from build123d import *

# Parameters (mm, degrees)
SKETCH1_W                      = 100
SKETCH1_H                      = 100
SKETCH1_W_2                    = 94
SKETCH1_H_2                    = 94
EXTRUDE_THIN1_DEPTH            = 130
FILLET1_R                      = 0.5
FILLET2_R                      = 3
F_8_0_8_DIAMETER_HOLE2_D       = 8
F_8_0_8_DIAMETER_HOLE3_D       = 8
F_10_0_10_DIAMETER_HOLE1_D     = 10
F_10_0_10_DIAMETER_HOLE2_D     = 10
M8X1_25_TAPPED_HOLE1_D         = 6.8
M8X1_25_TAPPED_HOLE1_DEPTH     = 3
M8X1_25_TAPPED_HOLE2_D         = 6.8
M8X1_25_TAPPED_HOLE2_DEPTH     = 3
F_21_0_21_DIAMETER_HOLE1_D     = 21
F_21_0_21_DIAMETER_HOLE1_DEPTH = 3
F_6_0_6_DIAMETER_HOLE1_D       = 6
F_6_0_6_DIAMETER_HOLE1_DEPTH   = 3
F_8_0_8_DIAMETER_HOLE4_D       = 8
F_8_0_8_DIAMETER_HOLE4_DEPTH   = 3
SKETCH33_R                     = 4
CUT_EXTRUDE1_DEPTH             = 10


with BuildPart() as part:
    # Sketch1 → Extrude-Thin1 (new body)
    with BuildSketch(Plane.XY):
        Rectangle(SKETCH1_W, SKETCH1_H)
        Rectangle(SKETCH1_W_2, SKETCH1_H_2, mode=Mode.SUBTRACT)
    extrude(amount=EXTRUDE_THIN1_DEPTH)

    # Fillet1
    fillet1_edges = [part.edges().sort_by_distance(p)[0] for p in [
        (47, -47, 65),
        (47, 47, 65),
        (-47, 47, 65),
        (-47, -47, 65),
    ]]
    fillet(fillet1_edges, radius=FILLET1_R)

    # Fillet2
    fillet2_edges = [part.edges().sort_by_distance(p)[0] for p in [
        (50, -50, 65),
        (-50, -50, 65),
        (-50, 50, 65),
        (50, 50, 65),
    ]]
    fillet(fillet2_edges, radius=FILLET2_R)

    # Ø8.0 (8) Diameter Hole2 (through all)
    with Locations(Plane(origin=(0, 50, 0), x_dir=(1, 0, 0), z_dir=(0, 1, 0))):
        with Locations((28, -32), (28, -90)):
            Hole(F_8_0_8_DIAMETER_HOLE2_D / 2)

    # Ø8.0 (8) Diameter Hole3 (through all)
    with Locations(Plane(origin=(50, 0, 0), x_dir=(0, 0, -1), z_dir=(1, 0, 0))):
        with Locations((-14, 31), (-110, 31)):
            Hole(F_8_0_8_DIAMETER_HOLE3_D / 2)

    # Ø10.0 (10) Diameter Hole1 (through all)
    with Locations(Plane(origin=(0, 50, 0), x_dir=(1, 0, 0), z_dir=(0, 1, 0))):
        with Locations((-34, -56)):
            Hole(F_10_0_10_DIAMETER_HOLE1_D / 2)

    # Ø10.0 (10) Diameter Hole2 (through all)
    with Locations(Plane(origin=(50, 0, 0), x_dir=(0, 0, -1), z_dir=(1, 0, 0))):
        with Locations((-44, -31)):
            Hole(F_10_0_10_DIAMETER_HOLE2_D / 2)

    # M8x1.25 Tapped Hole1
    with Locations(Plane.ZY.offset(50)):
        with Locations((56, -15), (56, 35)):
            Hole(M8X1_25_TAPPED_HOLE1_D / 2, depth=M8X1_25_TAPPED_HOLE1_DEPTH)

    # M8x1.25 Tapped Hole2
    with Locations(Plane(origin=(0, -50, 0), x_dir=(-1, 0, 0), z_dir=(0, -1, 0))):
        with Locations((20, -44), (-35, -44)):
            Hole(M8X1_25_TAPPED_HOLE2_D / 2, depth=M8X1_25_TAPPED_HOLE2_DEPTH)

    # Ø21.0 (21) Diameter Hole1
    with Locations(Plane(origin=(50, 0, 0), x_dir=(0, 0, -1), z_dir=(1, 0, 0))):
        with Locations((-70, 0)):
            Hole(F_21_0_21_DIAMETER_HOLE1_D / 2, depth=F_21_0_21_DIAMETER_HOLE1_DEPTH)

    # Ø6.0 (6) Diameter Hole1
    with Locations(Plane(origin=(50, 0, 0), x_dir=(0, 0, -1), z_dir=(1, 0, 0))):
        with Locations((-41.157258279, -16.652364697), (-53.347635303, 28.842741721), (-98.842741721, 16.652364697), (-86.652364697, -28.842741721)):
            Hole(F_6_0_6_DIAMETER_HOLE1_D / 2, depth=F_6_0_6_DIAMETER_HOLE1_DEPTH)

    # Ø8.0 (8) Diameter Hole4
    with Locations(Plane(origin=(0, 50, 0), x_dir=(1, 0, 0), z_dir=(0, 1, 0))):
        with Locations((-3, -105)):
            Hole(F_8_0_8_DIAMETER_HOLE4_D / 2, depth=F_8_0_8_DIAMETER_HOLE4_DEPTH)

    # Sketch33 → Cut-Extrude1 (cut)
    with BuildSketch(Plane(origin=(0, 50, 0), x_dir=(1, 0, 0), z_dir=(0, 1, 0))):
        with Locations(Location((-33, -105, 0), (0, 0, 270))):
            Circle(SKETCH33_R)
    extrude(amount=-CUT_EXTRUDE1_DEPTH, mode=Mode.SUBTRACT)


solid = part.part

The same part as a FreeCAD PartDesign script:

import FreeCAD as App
import Part
import Sketcher

V = App.Vector


def edges_at(feature, points):
    """Names of the edges that pass closest to the given points."""
    edges = feature.Shape.Edges
    near = lambda p: min(range(len(edges)), key=lambda i: edges[i].distToShape(Part.Vertex(*p))[0])
    return sorted({f"Edge{near(p) + 1}" for p in points})

doc = App.newDocument("Part")
body = doc.addObject("PartDesign::Body", "Body")

# Sketch on XY plane
sketch1 = doc.addObject("Sketcher::SketchObject", "Sketch")
body.addObject(sketch1)
sketch1.AttachmentSupport = (doc.XY_Plane, [""])
sketch1.MapMode = "FlatFace"
sketch1.addGeometry(Part.LineSegment(V(-50, 50, 0), V(-50, -50, 0)), False)
sketch1.addGeometry(Part.LineSegment(V(-50, -50, 0), V(50, -50, 0)), False)
sketch1.addGeometry(Part.LineSegment(V(50, -50, 0), V(50, 50, 0)), False)
sketch1.addGeometry(Part.LineSegment(V(50, 50, 0), V(-50, 50, 0)), False)
sketch1.addGeometry(Part.LineSegment(V(47, -47, 0), V(-47, -47, 0)), False)
sketch1.addGeometry(Part.LineSegment(V(-47, -47, 0), V(-47, 47, 0)), False)
sketch1.addGeometry(Part.LineSegment(V(-47, 47, 0), V(47, 47, 0)), False)
sketch1.addGeometry(Part.LineSegment(V(47, 47, 0), V(47, -47, 0)), False)
sketch1.addConstraint(Sketcher.Constraint("Coincident", 0, 2, 1, 1))
sketch1.addConstraint(Sketcher.Constraint("Coincident", 1, 2, 2, 1))
sketch1.addConstraint(Sketcher.Constraint("Coincident", 2, 2, 3, 1))
sketch1.addConstraint(Sketcher.Constraint("Coincident", 3, 2, 0, 1))
sketch1.addConstraint(Sketcher.Constraint("Coincident", 4, 2, 5, 1))
sketch1.addConstraint(Sketcher.Constraint("Coincident", 5, 2, 6, 1))
sketch1.addConstraint(Sketcher.Constraint("Coincident", 6, 2, 7, 1))
sketch1.addConstraint(Sketcher.Constraint("Coincident", 7, 2, 4, 1))
sketch1.addConstraint(Sketcher.Constraint("Vertical", 0))
sketch1.addConstraint(Sketcher.Constraint("Horizontal", 1))
sketch1.addConstraint(Sketcher.Constraint("Vertical", 2))
sketch1.addConstraint(Sketcher.Constraint("Horizontal", 3))
sketch1.addConstraint(Sketcher.Constraint("Horizontal", 4))
sketch1.addConstraint(Sketcher.Constraint("Vertical", 5))
sketch1.addConstraint(Sketcher.Constraint("Horizontal", 6))
sketch1.addConstraint(Sketcher.Constraint("Vertical", 7))
sketch1.addConstraint(Sketcher.Constraint("Symmetric", 0, 2, 2, 2, -1, 1))
sketch1.addConstraint(Sketcher.Constraint("Symmetric", 4, 2, 6, 2, -1, 1))
sketch1.addConstraint(Sketcher.Constraint("Equal", 3, 0))
sketch1.addConstraint(Sketcher.Constraint("Equal", 6, 5))
sketch1.addConstraint(Sketcher.Constraint("DistanceX", 1, 1, 1, 2, 100.0))
sketch1.addConstraint(Sketcher.Constraint("DistanceX", 4, 2, 4, 1, 94.0))
pad1 = doc.addObject("PartDesign::Pad", "Pad")
body.addObject(pad1)
pad1.Profile = sketch1
pad1.Length = 130
doc.recompute()

fillet = doc.addObject("PartDesign::Fillet", "Fillet")
body.addObject(fillet)
fillet.Base = (pad1, edges_at(pad1, [
    (47, -47, 65),
    (47, 47, 65),
    (-47, 47, 65),
    (-47, -47, 65),
]))
fillet.Radius = 0.5
doc.recompute()

fillet2 = doc.addObject("PartDesign::Fillet", "Fillet001")
body.addObject(fillet2)
fillet2.Base = (fillet, edges_at(fillet, [
    (50, -50, 65),
    (-50, -50, 65),
    (-50, 50, 65),
    (50, 50, 65),
]))
fillet2.Radius = 3

# Sketch on XZ plane
sketch2 = doc.addObject("Sketcher::SketchObject", "Sketch001")
body.addObject(sketch2)
sketch2.AttachmentSupport = (doc.XZ_Plane, [""])
sketch2.MapMode = "FlatFace"
sketch2.AttachmentOffset = App.Placement(V(0, 0, -50), App.Rotation())
sketch2.addGeometry(Part.Circle(V(28, 32, 0), V(0, 0, 1), 4), False)
sketch2.addGeometry(Part.Circle(V(28, 90, 0), V(0, 0, 1), 4), False)
sketch2.addConstraint(Sketcher.Constraint("Equal", 0, 1))
sketch2.addConstraint(Sketcher.Constraint("Vertical", 0, 3, 1, 3))
sketch2.addConstraint(Sketcher.Constraint("Diameter", 0, 8.0))
sketch2.addConstraint(Sketcher.Constraint("DistanceX", -1, 1, 0, 3, 28.0))
sketch2.addConstraint(Sketcher.Constraint("DistanceY", -1, 1, 0, 3, 32.0))
sketch2.addConstraint(Sketcher.Constraint("DistanceY", -1, 1, 1, 3, 90.0))
doc.recompute()
hole = doc.addObject("PartDesign::Hole", "Hole")
body.addObject(hole)
hole.Profile = sketch2
hole.ThreadType = "None"
hole.Diameter = 8
hole.DepthType = "ThroughAll"
hole.Reversed = True

# Sketch on YZ plane
sketch3 = doc.addObject("Sketcher::SketchObject", "Sketch002")
body.addObject(sketch3)
sketch3.AttachmentSupport = (doc.YZ_Plane, [""])
sketch3.MapMode = "FlatFace"
sketch3.AttachmentOffset = App.Placement(V(0, 0, 50), App.Rotation())
sketch3.addGeometry(Part.Circle(V(31, 14, 0), V(0, 0, 1), 4), False)
sketch3.addGeometry(Part.Circle(V(31, 110, 0), V(0, 0, 1), 4), False)
sketch3.addConstraint(Sketcher.Constraint("Equal", 0, 1))
sketch3.addConstraint(Sketcher.Constraint("Vertical", 0, 3, 1, 3))
sketch3.addConstraint(Sketcher.Constraint("Diameter", 0, 8.0))
sketch3.addConstraint(Sketcher.Constraint("DistanceX", -1, 1, 0, 3, 31.0))
sketch3.addConstraint(Sketcher.Constraint("DistanceY", -1, 1, 0, 3, 14.0))
sketch3.addConstraint(Sketcher.Constraint("DistanceY", -1, 1, 1, 3, 110.0))
doc.recompute()
hole2 = doc.addObject("PartDesign::Hole", "Hole001")
body.addObject(hole2)
hole2.Profile = sketch3
hole2.ThreadType = "None"
hole2.Diameter = 8
hole2.DepthType = "ThroughAll"

# Sketch on XZ plane
sketch4 = doc.addObject("Sketcher::SketchObject", "Sketch003")
body.addObject(sketch4)
sketch4.AttachmentSupport = (doc.XZ_Plane, [""])
sketch4.MapMode = "FlatFace"
sketch4.AttachmentOffset = App.Placement(V(0, 0, -50), App.Rotation())
sketch4.addGeometry(Part.Circle(V(-34, 56, 0), V(0, 0, 1), 5), False)
sketch4.addConstraint(Sketcher.Constraint("Diameter", 0, 10.0))
sketch4.addConstraint(Sketcher.Constraint("DistanceX", 0, 3, -1, 1, 34.0))
sketch4.addConstraint(Sketcher.Constraint("DistanceY", -1, 1, 0, 3, 56.0))
doc.recompute()
hole3 = doc.addObject("PartDesign::Hole", "Hole002")
body.addObject(hole3)
hole3.Profile = sketch4
hole3.ThreadType = "None"
hole3.Diameter = 10
hole3.DepthType = "ThroughAll"
hole3.Reversed = True

# Sketch on YZ plane
sketch5 = doc.addObject("Sketcher::SketchObject", "Sketch004")
body.addObject(sketch5)
sketch5.AttachmentSupport = (doc.YZ_Plane, [""])
sketch5.MapMode = "FlatFace"
sketch5.AttachmentOffset = App.Placement(V(0, 0, 50), App.Rotation())
sketch5.addGeometry(Part.Circle(V(-31, 44, 0), V(0, 0, 1), 5), False)
sketch5.addConstraint(Sketcher.Constraint("Diameter", 0, 10.0))
sketch5.addConstraint(Sketcher.Constraint("DistanceX", 0, 3, -1, 1, 31.0))
sketch5.addConstraint(Sketcher.Constraint("DistanceY", -1, 1, 0, 3, 44.0))
doc.recompute()
hole4 = doc.addObject("PartDesign::Hole", "Hole003")
body.addObject(hole4)
hole4.Profile = sketch5
hole4.ThreadType = "None"
hole4.Diameter = 10
hole4.DepthType = "ThroughAll"

# Sketch on YZ plane
sketch6 = doc.addObject("Sketcher::SketchObject", "Sketch005")
body.addObject(sketch6)
sketch6.AttachmentSupport = (doc.YZ_Plane, [""])
sketch6.MapMode = "FlatFace"
sketch6.AttachmentOffset = App.Placement(V(0, 0, -50), App.Rotation())
sketch6.addGeometry(Part.Circle(V(-15, 56, 0), V(0, 0, 1), 3.4), False)
sketch6.addGeometry(Part.Circle(V(35, 56, 0), V(0, 0, 1), 3.4), False)
sketch6.addConstraint(Sketcher.Constraint("Equal", 0, 1))
sketch6.addConstraint(Sketcher.Constraint("Horizontal", 0, 3, 1, 3))
sketch6.addConstraint(Sketcher.Constraint("Diameter", 0, 6.8))
sketch6.addConstraint(Sketcher.Constraint("DistanceX", 0, 3, -1, 1, 15.0))
sketch6.addConstraint(Sketcher.Constraint("DistanceY", -1, 1, 0, 3, 56.0))
sketch6.addConstraint(Sketcher.Constraint("DistanceX", -1, 1, 1, 3, 35.0))
doc.recompute()
hole5 = doc.addObject("PartDesign::Hole", "Hole004")
body.addObject(hole5)
hole5.Profile = sketch6
hole5.ThreadType = "None"
hole5.Diameter = 6.8
hole5.DepthType = "Dimension"
hole5.Depth = 3
hole5.DrillPoint = "Flat"
hole5.Reversed = True

# Sketch on XZ plane
sketch7 = doc.addObject("Sketcher::SketchObject", "Sketch006")
body.addObject(sketch7)
sketch7.AttachmentSupport = (doc.XZ_Plane, [""])
sketch7.MapMode = "FlatFace"
sketch7.AttachmentOffset = App.Placement(V(0, 0, 50), App.Rotation())
sketch7.addGeometry(Part.Circle(V(-20, 44, 0), V(0, 0, 1), 3.4), False)
sketch7.addGeometry(Part.Circle(V(35, 44, 0), V(0, 0, 1), 3.4), False)
sketch7.addConstraint(Sketcher.Constraint("Equal", 0, 1))
sketch7.addConstraint(Sketcher.Constraint("Horizontal", 0, 3, 1, 3))
sketch7.addConstraint(Sketcher.Constraint("Diameter", 0, 6.8))
sketch7.addConstraint(Sketcher.Constraint("DistanceX", 0, 3, -1, 1, 20.0))
sketch7.addConstraint(Sketcher.Constraint("DistanceY", -1, 1, 0, 3, 44.0))
sketch7.addConstraint(Sketcher.Constraint("DistanceX", -1, 1, 1, 3, 35.0))
doc.recompute()
hole6 = doc.addObject("PartDesign::Hole", "Hole005")
body.addObject(hole6)
hole6.Profile = sketch7
hole6.ThreadType = "None"
hole6.Diameter = 6.8
hole6.DepthType = "Dimension"
hole6.Depth = 3
hole6.DrillPoint = "Flat"

# Sketch on YZ plane
sketch8 = doc.addObject("Sketcher::SketchObject", "Sketch007")
body.addObject(sketch8)
sketch8.AttachmentSupport = (doc.YZ_Plane, [""])
sketch8.MapMode = "FlatFace"
sketch8.AttachmentOffset = App.Placement(V(0, 0, 50), App.Rotation())
sketch8.addGeometry(Part.Circle(V(0, 70, 0), V(0, 0, 1), 10.5), False)
sketch8.addConstraint(Sketcher.Constraint("PointOnObject", 0, 3, -2))
sketch8.addConstraint(Sketcher.Constraint("Diameter", 0, 21.0))
sketch8.addConstraint(Sketcher.Constraint("DistanceY", -1, 1, 0, 3, 70.0))
doc.recompute()
hole7 = doc.addObject("PartDesign::Hole", "Hole006")
body.addObject(hole7)
hole7.Profile = sketch8
hole7.ThreadType = "None"
hole7.Diameter = 21
hole7.DepthType = "Dimension"
hole7.Depth = 3
hole7.DrillPoint = "Flat"

# Sketch on YZ plane
sketch9 = doc.addObject("Sketcher::SketchObject", "Sketch008")
body.addObject(sketch9)
sketch9.AttachmentSupport = (doc.YZ_Plane, [""])
sketch9.MapMode = "FlatFace"
sketch9.AttachmentOffset = App.Placement(V(0, 0, 50), App.Rotation())
sketch9.addGeometry(Part.Circle(V(-16.652365, 41.157258, 0), V(0, 0, 1), 3), False)
sketch9.addGeometry(Part.Circle(V(28.842742, 53.347635, 0), V(0, 0, 1), 3), False)
sketch9.addGeometry(Part.Circle(V(16.652365, 98.842742, 0), V(0, 0, 1), 3), False)
sketch9.addGeometry(Part.Circle(V(-28.842742, 86.652365, 0), V(0, 0, 1), 3), False)
sketch9.addConstraint(Sketcher.Constraint("Equal", 0, 1))
sketch9.addConstraint(Sketcher.Constraint("Equal", 1, 2))
sketch9.addConstraint(Sketcher.Constraint("Equal", 2, 3))
sketch9.addConstraint(Sketcher.Constraint("Diameter", 0, 6.0))
sketch9.addConstraint(Sketcher.Constraint("DistanceY", -1, 1, 0, 3, 41.157258))
sketch9.addConstraint(Sketcher.Constraint("DistanceX", -1, 1, 1, 3, 28.842742))
sketch9.addConstraint(Sketcher.Constraint("DistanceY", -1, 1, 2, 3, 98.842742))
sketch9.addConstraint(Sketcher.Constraint("DistanceX", 3, 3, -1, 1, 28.842742))
sketch9.addConstraint(Sketcher.Constraint("DistanceX", 0, 3, 2, 3, 33.304729))
sketch9.addConstraint(Sketcher.Constraint("DistanceY", 1, 3, 3, 3, 33.304729))
sketch9.addConstraint(Sketcher.Constraint("DistanceX", 0, 3, -1, 1, 16.652365))
sketch9.addConstraint(Sketcher.Constraint("DistanceY", -1, 1, 1, 3, 53.347635))
doc.recompute()
hole8 = doc.addObject("PartDesign::Hole", "Hole007")
body.addObject(hole8)
hole8.Profile = sketch9
hole8.ThreadType = "None"
hole8.Diameter = 6
hole8.DepthType = "Dimension"
hole8.Depth = 3
hole8.DrillPoint = "Flat"

# Sketch on XZ plane
sketch10 = doc.addObject("Sketcher::SketchObject", "Sketch009")
body.addObject(sketch10)
sketch10.AttachmentSupport = (doc.XZ_Plane, [""])
sketch10.MapMode = "FlatFace"
sketch10.AttachmentOffset = App.Placement(V(0, 0, -50), App.Rotation())
sketch10.addGeometry(Part.Circle(V(-3, 105, 0), V(0, 0, 1), 4), False)
sketch10.addConstraint(Sketcher.Constraint("Diameter", 0, 8.0))
sketch10.addConstraint(Sketcher.Constraint("DistanceX", 0, 3, -1, 1, 3.0))
sketch10.addConstraint(Sketcher.Constraint("DistanceY", -1, 1, 0, 3, 105.0))
doc.recompute()
hole9 = doc.addObject("PartDesign::Hole", "Hole008")
body.addObject(hole9)
hole9.Profile = sketch10
hole9.ThreadType = "None"
hole9.Diameter = 8
hole9.DepthType = "Dimension"
hole9.Depth = 3
hole9.DrillPoint = "Flat"
hole9.Reversed = True

# Sketch on XZ plane
sketch11 = doc.addObject("Sketcher::SketchObject", "Sketch010")
body.addObject(sketch11)
sketch11.AttachmentSupport = (doc.XZ_Plane, [""])
sketch11.MapMode = "FlatFace"
sketch11.AttachmentOffset = App.Placement(V(0, 0, -50), App.Rotation())
sketch11.addGeometry(Part.Circle(V(-33, 105, 0), V(0, 0, 1), 4), False)
sketch11.addConstraint(Sketcher.Constraint("Diameter", 0, 8.0))
sketch11.addConstraint(Sketcher.Constraint("DistanceX", 0, 3, -1, 1, 33.0))
sketch11.addConstraint(Sketcher.Constraint("DistanceY", -1, 1, 0, 3, 105.0))
pocket1 = doc.addObject("PartDesign::Pocket", "Pocket")
body.addObject(pocket1)
pocket1.Profile = sketch11
pocket1.Length = 10
pocket1.Reversed = True

doc.recompute()
